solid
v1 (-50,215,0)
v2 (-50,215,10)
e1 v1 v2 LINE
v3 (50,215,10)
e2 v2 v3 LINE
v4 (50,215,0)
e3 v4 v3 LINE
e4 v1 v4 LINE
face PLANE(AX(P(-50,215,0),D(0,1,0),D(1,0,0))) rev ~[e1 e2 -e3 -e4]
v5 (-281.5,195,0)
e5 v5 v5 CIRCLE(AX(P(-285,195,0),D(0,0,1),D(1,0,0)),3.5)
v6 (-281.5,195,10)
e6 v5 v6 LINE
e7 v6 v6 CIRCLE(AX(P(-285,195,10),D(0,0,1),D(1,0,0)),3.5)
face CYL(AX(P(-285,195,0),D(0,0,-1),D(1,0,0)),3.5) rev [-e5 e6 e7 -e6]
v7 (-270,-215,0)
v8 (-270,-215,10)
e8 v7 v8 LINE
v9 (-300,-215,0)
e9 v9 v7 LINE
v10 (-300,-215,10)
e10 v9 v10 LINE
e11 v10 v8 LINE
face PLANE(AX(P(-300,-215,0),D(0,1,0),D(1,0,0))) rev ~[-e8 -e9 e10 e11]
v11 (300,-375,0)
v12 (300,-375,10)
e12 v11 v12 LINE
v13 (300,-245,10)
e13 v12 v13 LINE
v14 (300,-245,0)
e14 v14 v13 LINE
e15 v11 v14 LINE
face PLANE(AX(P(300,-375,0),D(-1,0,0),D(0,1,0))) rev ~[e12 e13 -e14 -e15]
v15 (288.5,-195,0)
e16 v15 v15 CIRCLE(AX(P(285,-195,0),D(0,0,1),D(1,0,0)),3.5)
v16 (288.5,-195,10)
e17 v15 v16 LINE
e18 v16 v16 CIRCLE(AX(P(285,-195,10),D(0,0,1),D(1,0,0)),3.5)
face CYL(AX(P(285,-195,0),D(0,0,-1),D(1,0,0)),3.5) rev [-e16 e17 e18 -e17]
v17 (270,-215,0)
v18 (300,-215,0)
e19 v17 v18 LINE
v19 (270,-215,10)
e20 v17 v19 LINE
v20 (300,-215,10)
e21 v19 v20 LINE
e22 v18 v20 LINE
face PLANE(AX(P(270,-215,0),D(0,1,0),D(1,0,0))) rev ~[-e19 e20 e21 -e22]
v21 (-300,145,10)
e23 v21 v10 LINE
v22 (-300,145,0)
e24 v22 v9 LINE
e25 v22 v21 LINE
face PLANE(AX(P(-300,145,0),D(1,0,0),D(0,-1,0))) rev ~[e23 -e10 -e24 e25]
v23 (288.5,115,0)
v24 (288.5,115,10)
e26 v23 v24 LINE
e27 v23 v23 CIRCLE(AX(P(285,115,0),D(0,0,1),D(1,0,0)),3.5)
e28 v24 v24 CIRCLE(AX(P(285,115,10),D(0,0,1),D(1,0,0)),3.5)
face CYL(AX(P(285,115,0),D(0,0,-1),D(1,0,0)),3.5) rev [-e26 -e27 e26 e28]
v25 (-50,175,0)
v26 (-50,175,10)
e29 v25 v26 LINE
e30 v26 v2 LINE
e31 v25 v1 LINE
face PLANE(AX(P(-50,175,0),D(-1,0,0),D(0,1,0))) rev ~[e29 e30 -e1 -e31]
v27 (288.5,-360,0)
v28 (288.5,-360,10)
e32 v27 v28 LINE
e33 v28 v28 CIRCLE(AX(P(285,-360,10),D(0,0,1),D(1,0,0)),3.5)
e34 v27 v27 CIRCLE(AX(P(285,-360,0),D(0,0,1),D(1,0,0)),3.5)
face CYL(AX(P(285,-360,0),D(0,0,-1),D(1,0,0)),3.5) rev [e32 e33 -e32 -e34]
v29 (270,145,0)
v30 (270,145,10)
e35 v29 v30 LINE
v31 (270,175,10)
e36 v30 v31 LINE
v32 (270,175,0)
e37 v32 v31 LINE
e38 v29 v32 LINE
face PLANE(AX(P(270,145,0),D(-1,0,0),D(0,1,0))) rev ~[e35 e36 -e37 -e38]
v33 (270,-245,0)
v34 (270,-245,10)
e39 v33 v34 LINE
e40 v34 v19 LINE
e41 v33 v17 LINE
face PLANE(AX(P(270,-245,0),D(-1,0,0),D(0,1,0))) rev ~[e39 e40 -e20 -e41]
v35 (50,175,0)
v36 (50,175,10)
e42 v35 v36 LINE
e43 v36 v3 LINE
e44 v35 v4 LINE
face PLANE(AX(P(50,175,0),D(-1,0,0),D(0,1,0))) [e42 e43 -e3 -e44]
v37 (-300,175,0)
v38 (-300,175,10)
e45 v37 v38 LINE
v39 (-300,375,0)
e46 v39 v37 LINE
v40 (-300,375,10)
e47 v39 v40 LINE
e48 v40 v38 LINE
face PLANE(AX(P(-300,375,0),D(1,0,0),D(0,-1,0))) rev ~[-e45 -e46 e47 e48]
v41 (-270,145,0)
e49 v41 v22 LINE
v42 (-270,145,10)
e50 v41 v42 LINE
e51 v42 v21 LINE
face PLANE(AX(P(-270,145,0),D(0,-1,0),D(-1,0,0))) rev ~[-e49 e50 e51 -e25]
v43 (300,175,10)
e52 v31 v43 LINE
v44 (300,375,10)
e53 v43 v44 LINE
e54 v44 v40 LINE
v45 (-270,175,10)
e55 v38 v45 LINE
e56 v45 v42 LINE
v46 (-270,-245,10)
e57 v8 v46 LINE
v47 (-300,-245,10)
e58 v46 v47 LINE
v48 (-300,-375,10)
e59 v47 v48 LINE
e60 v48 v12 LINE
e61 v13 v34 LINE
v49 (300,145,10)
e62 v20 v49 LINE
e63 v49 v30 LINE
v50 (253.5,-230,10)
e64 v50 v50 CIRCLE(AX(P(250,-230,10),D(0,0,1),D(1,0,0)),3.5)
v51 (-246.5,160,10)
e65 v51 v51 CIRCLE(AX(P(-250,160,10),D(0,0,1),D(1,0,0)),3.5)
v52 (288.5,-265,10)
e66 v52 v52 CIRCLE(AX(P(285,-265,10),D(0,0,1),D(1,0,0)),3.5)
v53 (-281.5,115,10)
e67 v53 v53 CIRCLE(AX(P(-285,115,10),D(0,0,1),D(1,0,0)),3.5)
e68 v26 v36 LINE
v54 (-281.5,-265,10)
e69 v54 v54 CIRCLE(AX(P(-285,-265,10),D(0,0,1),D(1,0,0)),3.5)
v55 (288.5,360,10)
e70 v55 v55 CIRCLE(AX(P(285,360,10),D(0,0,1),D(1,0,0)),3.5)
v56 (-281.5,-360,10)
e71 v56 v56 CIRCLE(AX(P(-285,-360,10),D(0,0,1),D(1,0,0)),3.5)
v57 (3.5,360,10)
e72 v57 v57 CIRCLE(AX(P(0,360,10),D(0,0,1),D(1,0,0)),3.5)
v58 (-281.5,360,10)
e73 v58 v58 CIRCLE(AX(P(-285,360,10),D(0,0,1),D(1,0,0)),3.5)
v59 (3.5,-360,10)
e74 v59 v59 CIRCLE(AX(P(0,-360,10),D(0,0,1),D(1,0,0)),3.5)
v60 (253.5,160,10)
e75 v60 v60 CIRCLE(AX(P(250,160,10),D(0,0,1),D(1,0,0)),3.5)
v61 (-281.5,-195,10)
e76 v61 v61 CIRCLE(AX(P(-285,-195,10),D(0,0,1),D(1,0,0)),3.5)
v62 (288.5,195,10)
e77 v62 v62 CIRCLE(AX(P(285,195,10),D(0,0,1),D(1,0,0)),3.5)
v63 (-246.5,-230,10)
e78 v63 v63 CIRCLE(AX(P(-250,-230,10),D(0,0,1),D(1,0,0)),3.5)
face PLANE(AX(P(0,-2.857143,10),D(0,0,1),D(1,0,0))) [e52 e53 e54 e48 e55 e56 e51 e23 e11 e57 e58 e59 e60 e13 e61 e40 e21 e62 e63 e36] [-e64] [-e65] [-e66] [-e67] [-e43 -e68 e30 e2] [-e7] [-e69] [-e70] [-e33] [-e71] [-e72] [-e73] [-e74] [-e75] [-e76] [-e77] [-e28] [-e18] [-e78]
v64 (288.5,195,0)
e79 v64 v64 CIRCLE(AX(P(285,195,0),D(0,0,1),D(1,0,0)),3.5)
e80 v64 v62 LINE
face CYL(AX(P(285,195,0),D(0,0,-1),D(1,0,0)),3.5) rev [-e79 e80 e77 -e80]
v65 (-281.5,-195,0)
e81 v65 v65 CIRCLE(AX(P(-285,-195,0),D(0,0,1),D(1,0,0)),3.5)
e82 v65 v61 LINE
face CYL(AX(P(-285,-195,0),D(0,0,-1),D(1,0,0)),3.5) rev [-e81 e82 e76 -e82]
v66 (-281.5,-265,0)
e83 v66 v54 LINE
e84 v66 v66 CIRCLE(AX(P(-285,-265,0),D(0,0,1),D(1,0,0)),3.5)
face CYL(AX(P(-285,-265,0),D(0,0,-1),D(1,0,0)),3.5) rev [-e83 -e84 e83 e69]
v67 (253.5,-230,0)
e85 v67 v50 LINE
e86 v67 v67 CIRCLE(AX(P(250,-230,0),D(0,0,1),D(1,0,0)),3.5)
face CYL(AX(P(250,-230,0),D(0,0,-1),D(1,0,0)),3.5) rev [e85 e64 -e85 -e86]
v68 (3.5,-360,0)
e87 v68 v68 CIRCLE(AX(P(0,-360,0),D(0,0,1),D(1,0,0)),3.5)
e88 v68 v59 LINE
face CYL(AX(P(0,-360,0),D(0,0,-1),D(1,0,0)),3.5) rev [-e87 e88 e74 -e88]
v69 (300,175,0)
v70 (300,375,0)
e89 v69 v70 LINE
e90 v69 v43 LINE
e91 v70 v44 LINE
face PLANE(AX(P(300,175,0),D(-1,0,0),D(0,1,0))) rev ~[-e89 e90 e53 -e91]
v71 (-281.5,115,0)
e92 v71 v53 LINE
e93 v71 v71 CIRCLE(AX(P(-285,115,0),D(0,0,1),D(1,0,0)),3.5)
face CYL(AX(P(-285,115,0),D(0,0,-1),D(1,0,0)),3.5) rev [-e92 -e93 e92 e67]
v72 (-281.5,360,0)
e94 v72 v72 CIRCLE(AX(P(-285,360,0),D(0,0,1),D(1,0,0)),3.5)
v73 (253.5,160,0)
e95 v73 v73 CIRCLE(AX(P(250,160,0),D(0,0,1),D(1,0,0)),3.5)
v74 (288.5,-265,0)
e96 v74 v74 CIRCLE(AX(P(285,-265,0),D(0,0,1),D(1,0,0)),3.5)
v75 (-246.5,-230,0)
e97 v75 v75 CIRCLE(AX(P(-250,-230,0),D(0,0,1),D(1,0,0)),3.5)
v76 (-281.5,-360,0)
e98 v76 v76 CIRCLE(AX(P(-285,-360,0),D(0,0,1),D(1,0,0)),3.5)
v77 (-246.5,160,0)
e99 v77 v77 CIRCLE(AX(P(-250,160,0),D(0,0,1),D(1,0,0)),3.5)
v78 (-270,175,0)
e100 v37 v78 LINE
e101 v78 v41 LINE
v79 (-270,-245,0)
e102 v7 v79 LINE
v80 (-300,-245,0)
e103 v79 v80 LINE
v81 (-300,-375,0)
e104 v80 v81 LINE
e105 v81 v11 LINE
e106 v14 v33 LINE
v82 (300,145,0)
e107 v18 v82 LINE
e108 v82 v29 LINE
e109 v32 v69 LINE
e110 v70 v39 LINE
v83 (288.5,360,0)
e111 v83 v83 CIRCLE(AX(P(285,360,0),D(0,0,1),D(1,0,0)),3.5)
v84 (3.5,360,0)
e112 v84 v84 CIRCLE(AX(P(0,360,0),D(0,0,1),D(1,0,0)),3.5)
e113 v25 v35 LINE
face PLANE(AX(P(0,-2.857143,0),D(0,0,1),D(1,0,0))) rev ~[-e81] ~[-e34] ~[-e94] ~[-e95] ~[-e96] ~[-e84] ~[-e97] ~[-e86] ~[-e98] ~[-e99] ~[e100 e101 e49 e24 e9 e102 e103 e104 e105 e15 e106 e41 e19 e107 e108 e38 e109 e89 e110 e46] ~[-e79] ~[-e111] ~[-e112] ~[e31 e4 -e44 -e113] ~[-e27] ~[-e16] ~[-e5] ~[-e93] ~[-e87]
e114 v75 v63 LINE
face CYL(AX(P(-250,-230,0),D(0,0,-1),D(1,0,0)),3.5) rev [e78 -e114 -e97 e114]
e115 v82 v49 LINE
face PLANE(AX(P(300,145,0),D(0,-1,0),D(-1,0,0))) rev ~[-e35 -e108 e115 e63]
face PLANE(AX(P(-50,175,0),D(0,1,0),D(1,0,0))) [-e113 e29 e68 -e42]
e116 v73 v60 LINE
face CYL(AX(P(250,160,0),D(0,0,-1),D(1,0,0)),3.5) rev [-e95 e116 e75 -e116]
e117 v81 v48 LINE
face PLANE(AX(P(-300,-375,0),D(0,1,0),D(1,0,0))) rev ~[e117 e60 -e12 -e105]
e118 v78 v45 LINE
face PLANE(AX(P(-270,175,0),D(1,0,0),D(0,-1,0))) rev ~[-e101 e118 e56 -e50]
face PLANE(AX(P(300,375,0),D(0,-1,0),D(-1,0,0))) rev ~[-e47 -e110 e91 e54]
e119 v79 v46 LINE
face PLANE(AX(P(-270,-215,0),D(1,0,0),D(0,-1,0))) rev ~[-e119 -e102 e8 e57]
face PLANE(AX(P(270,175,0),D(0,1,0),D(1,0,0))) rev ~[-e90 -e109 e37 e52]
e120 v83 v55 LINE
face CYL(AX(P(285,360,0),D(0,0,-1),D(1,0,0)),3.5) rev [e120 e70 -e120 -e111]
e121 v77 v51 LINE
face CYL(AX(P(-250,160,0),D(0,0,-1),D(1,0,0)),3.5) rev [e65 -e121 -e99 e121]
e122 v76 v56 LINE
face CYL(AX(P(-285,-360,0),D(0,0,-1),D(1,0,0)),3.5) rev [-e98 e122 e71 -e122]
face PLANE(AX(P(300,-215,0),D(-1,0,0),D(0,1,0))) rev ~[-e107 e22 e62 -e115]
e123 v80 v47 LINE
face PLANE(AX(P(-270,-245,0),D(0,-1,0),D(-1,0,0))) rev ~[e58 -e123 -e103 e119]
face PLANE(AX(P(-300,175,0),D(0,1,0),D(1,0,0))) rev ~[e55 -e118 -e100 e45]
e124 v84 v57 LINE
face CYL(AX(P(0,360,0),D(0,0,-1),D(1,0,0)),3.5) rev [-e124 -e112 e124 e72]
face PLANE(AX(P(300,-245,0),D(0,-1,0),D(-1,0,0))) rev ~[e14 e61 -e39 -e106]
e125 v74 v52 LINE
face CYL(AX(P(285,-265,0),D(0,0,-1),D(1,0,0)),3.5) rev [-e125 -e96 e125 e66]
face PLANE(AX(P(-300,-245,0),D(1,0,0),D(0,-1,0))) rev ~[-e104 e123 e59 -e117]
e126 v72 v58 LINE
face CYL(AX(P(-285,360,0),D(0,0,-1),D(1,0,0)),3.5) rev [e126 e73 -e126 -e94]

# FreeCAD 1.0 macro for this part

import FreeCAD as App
import Part
import Sketcher
from FreeCAD import Vector
Q = App.Units.Quantity

doc = App.newDocument("Part")
body = doc.addObject("PartDesign::Body", "Body")

# Sketch on XY plane
sketch1 = body.newObject("Sketcher::SketchObject", "Sketch")
sketch1.AttachmentSupport = (doc.getObject("XY_Plane"), [""])
sketch1.MapMode = "FlatFace"
sketch1.addGeometry(Part.LineSegment(Vector(300, 175, 0), Vector(300, 375, 0)), False)
sketch1.addGeometry(Part.LineSegment(Vector(300, 375, 0), Vector(-300, 375, 0)), False)
sketch1.addGeometry(Part.LineSegment(Vector(-300, 375, 0), Vector(-300, 175, 0)), False)
sketch1.addGeometry(Part.LineSegment(Vector(-300, 175, 0), Vector(-270, 175, 0)), False)
sketch1.addGeometry(Part.LineSegment(Vector(-270, 175, 0), Vector(-270, 145, 0)), False)
sketch1.addGeometry(Part.LineSegment(Vector(-270, 145, 0), Vector(-300, 145, 0)), False)
sketch1.addGeometry(Part.LineSegment(Vector(-300, 145, 0), Vector(-300, -215, 0)), False)
sketch1.addGeometry(Part.LineSegment(Vector(-300, -215, 0), Vector(-270, -215, 0)), False)
sketch1.addGeometry(Part.LineSegment(Vector(-270, -215, 0), Vector(-270, -245, 0)), False)
sketch1.addGeometry(Part.LineSegment(Vector(-270, -245, 0), Vector(-300, -245, 0)), False)
sketch1.addGeometry(Part.LineSegment(Vector(-300, -245, 0), Vector(-300, -375, 0)), False)
sketch1.addGeometry(Part.LineSegment(Vector(-300, -375, 0), Vector(300, -375, 0)), False)
sketch1.addGeometry(Part.LineSegment(Vector(300, -375, 0), Vector(300, -245, 0)), False)
sketch1.addGeometry(Part.LineSegment(Vector(300, -245, 0), Vector(270, -245, 0)), False)
sketch1.addGeometry(Part.LineSegment(Vector(270, -245, 0), Vector(270, -215, 0)), False)
sketch1.addGeometry(Part.LineSegment(Vector(270, -215, 0), Vector(300, -215, 0)), False)
sketch1.addGeometry(Part.LineSegment(Vector(300, -215, 0), Vector(300, 145, 0)), False)
sketch1.addGeometry(Part.LineSegment(Vector(300, 145, 0), Vector(270, 145, 0)), False)
sketch1.addGeometry(Part.LineSegment(Vector(270, 145, 0), Vector(270, 175, 0)), False)
sketch1.addGeometry(Part.LineSegment(Vector(270, 175, 0), Vector(300, 175, 0)), False)
sketch1.addGeometry(Part.Circle(Vector(-285, -360, 0), Vector(0, 0, 1), 3.5), False)
sketch1.addGeometry(Part.Circle(Vector(-285, -265, 0), Vector(0, 0, 1), 3.5), False)
sketch1.addGeometry(Part.Circle(Vector(-250, -230, 0), Vector(0, 0, 1), 3.5), False)
sketch1.addGeometry(Part.Circle(Vector(-285, -195, 0), Vector(0, 0, 1), 3.5), False)
sketch1.addGeometry(Part.Circle(Vector(0, -360, 0), Vector(0, 0, 1), 3.5), False)
sketch1.addGeometry(Part.Circle(Vector(285, -360, 0), Vector(0, 0, 1), 3.5), False)
sketch1.addGeometry(Part.Circle(Vector(250, -230, 0), Vector(0, 0, 1), 3.5), False)
sketch1.addGeometry(Part.Circle(Vector(285, -265, 0), Vector(0, 0, 1), 3.5), False)
sketch1.addGeometry(Part.Circle(Vector(285, -195, 0), Vector(0, 0, 1), 3.5), False)
sketch1.addGeometry(Part.Circle(Vector(-285, 115, 0), Vector(0, 0, 1), 3.5), False)
sketch1.addGeometry(Part.Circle(Vector(-250, 160, 0), Vector(0, 0, 1), 3.5), False)
sketch1.addGeometry(Part.Circle(Vector(-285, 195, 0), Vector(0, 0, 1), 3.5), False)
sketch1.addGeometry(Part.Circle(Vector(-285, 360, 0), Vector(0, 0, 1), 3.5), False)
sketch1.addGeometry(Part.Circle(Vector(285, 115, 0), Vector(0, 0, 1), 3.5), False)
sketch1.addGeometry(Part.Circle(Vector(250, 160, 0), Vector(0, 0, 1), 3.5), False)
sketch1.addGeometry(Part.LineSegment(Vector(50, 175, 0), Vector(-50, 175, 0)), False)
sketch1.addGeometry(Part.LineSegment(Vector(-50, 175, 0), Vector(-50, 215, 0)), False)
sketch1.addGeometry(Part.LineSegment(Vector(-50, 215, 0), Vector(50, 215, 0)), False)
sketch1.addGeometry(Part.LineSegment(Vector(50, 215, 0), Vector(50, 175, 0)), False)
sketch1.addGeometry(Part.Circle(Vector(0, 360, 0), Vector(0, 0, 1), 3.5), False)
sketch1.addGeometry(Part.Circle(Vector(285, 195, 0), Vector(0, 0, 1), 3.5), False)
sketch1.addGeometry(Part.Circle(Vector(285, 360, 0), Vector(0, 0, 1), 3.5), False)
sketch1.addConstraint(Sketcher.Constraint("Coincident", 0, 2, 1, 1))
sketch1.addConstraint(Sketcher.Constraint("Coincident", 1, 2, 2, 1))
sketch1.addConstraint(Sketcher.Constraint("Coincident", 2, 2, 3, 1))
sketch1.addConstraint(Sketcher.Constraint("Coincident", 3, 2, 4, 1))
sketch1.addConstraint(Sketcher.Constraint("Coincident", 4, 2, 5, 1))
sketch1.addConstraint(Sketcher.Constraint("Coincident", 5, 2, 6, 1))
sketch1.addConstraint(Sketcher.Constraint("Coincident", 6, 2, 7, 1))
sketch1.addConstraint(Sketcher.Constraint("Coincident", 7, 2, 8, 1))
sketch1.addConstraint(Sketcher.Constraint("Coincident", 8, 2, 9, 1))
sketch1.addConstraint(Sketcher.Constraint("Coincident", 9, 2, 10, 1))
sketch1.addConstraint(Sketcher.Constraint("Coincident", 10, 2, 11, 1))
sketch1.addConstraint(Sketcher.Constraint("Coincident", 11, 2, 12, 1))
sketch1.addConstraint(Sketcher.Constraint("Coincident", 12, 2, 13, 1))
sketch1.addConstraint(Sketcher.Constraint("Coincident", 13, 2, 14, 1))
sketch1.addConstraint(Sketcher.Constraint("Coincident", 14, 2, 15, 1))
sketch1.addConstraint(Sketcher.Constraint("Coincident", 15, 2, 16, 1))
sketch1.addConstraint(Sketcher.Constraint("Coincident", 16, 2, 17, 1))
sketch1.addConstraint(Sketcher.Constraint("Coincident", 17, 2, 18, 1))
sketch1.addConstraint(Sketcher.Constraint("Coincident", 18, 2, 19, 1))
sketch1.addConstraint(Sketcher.Constraint("Coincident", 19, 2, 0, 1))
sketch1.addConstraint(Sketcher.Constraint("Coincident", 35, 2, 36, 1))
sketch1.addConstraint(Sketcher.Constraint("Coincident", 36, 2, 37, 1))
sketch1.addConstraint(Sketcher.Constraint("Coincident", 37, 2, 38, 1))
sketch1.addConstraint(Sketcher.Constraint("Coincident", 38, 2, 35, 1))
sketch1.addConstraint(Sketcher.Constraint("Vertical", 0))
sketch1.addConstraint(Sketcher.Constraint("Horizontal", 1))
sketch1.addConstraint(Sketcher.Constraint("Vertical", 2))
sketch1.addConstraint(Sketcher.Constraint("Horizontal", 3))
sketch1.addConstraint(Sketcher.Constraint("Vertical", 4))
sketch1.addConstraint(Sketcher.Constraint("Horizontal", 5))
sketch1.addConstraint(Sketcher.Constraint("Vertical", 6))
sketch1.addConstraint(Sketcher.Constraint("Horizontal", 7))
sketch1.addConstraint(Sketcher.Constraint("Vertical", 8))
sketch1.addConstraint(Sketcher.Constraint("Horizontal", 9))
sketch1.addConstraint(Sketcher.Constraint("Vertical", 10))
sketch1.addConstraint(Sketcher.Constraint("Horizontal", 11))
sketch1.addConstraint(Sketcher.Constraint("Vertical", 12))
sketch1.addConstraint(Sketcher.Constraint("Horizontal", 13))
sketch1.addConstraint(Sketcher.Constraint("Vertical", 14))
sketch1.addConstraint(Sketcher.Constraint("Horizontal", 15))
sketch1.addConstraint(Sketcher.Constraint("Vertical", 16))
sketch1.addConstraint(Sketcher.Constraint("Horizontal", 17))
sketch1.addConstraint(Sketcher.Constraint("Vertical", 18))
sketch1.addConstraint(Sketcher.Constraint("Horizontal", 19))
sketch1.addConstraint(Sketcher.Constraint("Horizontal", 35))
sketch1.addConstraint(Sketcher.Constraint("Vertical", 36))
sketch1.addConstraint(Sketcher.Constraint("Horizontal", 37))
sketch1.addConstraint(Sketcher.Constraint("Vertical", 38))
sketch1.addConstraint(Sketcher.Constraint("Equal", 20, 21))
sketch1.addConstraint(Sketcher.Constraint("Equal", 21, 22))
sketch1.addConstraint(Sketcher.Constraint("Equal", 22, 23))
sketch1.addConstraint(Sketcher.Constraint("Equal", 23, 24))
sketch1.addConstraint(Sketcher.Constraint("Equal", 24, 25))
sketch1.addConstraint(Sketcher.Constraint("Equal", 25, 26))
sketch1.addConstraint(Sketcher.Constraint("Equal", 26, 27))
sketch1.addConstraint(Sketcher.Constraint("Equal", 27, 28))
sketch1.addConstraint(Sketcher.Constraint("Equal", 28, 29))
sketch1.addConstraint(Sketcher.Constraint("Equal", 29, 30))
sketch1.addConstraint(Sketcher.Constraint("Equal", 30, 31))
sketch1.addConstraint(Sketcher.Constraint("Equal", 31, 32))
sketch1.addConstraint(Sketcher.Constraint("Equal", 32, 33))
sketch1.addConstraint(Sketcher.Constraint("Equal", 33, 34))
sketch1.addConstraint(Sketcher.Constraint("Equal", 34, 39))
sketch1.addConstraint(Sketcher.Constraint("Equal", 39, 40))
sketch1.addConstraint(Sketcher.Constraint("Equal", 40, 41))
sketch1.addConstraint(Sketcher.Constraint("Symmetric", 28, 3, 31, 3, -1, 1))
sketch1.addConstraint(Sketcher.Constraint("Symmetric", 25, 3, 32, 3, -1, 1))
sketch1.addConstraint(Sketcher.Constraint("Symmetric", 24, 3, 39, 3, -1, 1))
sketch1.addConstraint(Sketcher.Constraint("Symmetric", 23, 3, 40, 3, -1, 1))
sketch1.addConstraint(Sketcher.Constraint("Symmetric", 20, 3, 41, 3, -1, 1))
sketch1.addConstraint(Sketcher.Constraint("Symmetric", 0, 2, 10, 2, -1, 1))
sketch1.addConstraint(Sketcher.Constraint("Symmetric", 20, 3, 25, 3, -2))
sketch1.addConstraint(Sketcher.Constraint("Symmetric", 22, 3, 26, 3, -2))
sketch1.addConstraint(Sketcher.Constraint("Symmetric", 21, 3, 27, 3, -2))
sketch1.addConstraint(Sketcher.Constraint("Symmetric", 23, 3, 28, 3, -2))
sketch1.addConstraint(Sketcher.Constraint("Symmetric", 29, 3, 33, 3, -2))
sketch1.addConstraint(Sketcher.Constraint("Symmetric", 30, 3, 34, 3, -2))
sketch1.addConstraint(Sketcher.Constraint("Symmetric", 9, 2, 12, 2, -2))
sketch1.addConstraint(Sketcher.Constraint("Symmetric", 7, 2, 14, 2, -2))
sketch1.addConstraint(Sketcher.Constraint("Symmetric", 5, 2, 16, 2, -2))
sketch1.addConstraint(Sketcher.Constraint("Symmetric", 3, 2, 18, 2, -2))
sketch1.addConstraint(Sketcher.Constraint("PointOnObject", 24, 3, -2))
sketch1.addConstraint(Sketcher.Constraint("Horizontal", 20, 3, 24, 3))
sketch1.addConstraint(Sketcher.Constraint("Horizontal", 19, 2, 35, 2))
sketch1.addConstraint(Sketcher.Constraint("Vertical", 20, 3, 21, 3))
sketch1.addConstraint(Sketcher.Constraint("Vertical", 21, 3, 23, 3))
sketch1.addConstraint(Sketcher.Constraint("Vertical", 23, 3, 29, 3))
sketch1.addConstraint(Sketcher.Constraint("Vertical", 22, 3, 30, 3))
sketch1.addConstraint(Sketcher.Constraint("Vertical", 2, 2, 5, 2))
sketch1.addConstraint(Sketcher.Constraint("Vertical", 4, 2, 7, 2))
sketch1.addConstraint(Sketcher.Constraint("Vertical", 6, 2, 9, 2))
sketch1.addConstraint(Sketcher.Constraint("Equal", 19, 4))
sketch1.addConstraint(Sketcher.Constraint("Equal", 4, 8))
sketch1.addConstraint(Sketcher.Constraint("Diameter", 20, Q("7 mm")))
sketch1.addConstraint(Sketcher.Constraint("DistanceX", 1, 2, 1, 1, Q("600 mm")))
sketch1.addConstraint(Sketcher.Constraint("DistanceX", 3, 1, 3, 2, Q("30 mm")))
sketch1.addConstraint(Sketcher.Constraint("DistanceX", 35, 2, 35, 1, Q("100 mm")))
sketch1.addConstraint(Sketcher.Constraint("DistanceY", 0, 1, 0, 2, Q("200 mm")))
sketch1.addConstraint(Sketcher.Constraint("DistanceY", 6, 2, 6, 1, Q("360 mm")))
sketch1.addConstraint(Sketcher.Constraint("DistanceY", 10, 2, 10, 1, Q("130 mm")))
sketch1.addConstraint(Sketcher.Constraint("DistanceY", 36, 1, 36, 2, Q("40 mm")))
sketch1.addConstraint(Sketcher.Constraint("DistanceX", 20, 3, -1, 1, Q("285 mm")))
sketch1.addConstraint(Sketcher.Constraint("DistanceY", 20, 3, -1, 1, Q("360 mm")))
sketch1.addConstraint(Sketcher.Constraint("DistanceY", 21, 3, -1, 1, Q("265 mm")))
sketch1.addConstraint(Sketcher.Constraint("DistanceX", 22, 3, -1, 1, Q("250 mm")))
sketch1.addConstraint(Sketcher.Constraint("DistanceY", 22, 3, -1, 1, Q("230 mm")))
sketch1.addConstraint(Sketcher.Constraint("DistanceY", 23, 3, -1, 1, Q("195 mm")))
sketch1.addConstraint(Sketcher.Constraint("DistanceY", -1, 1, 29, 3, Q("115 mm")))
sketch1.addConstraint(Sketcher.Constraint("DistanceY", -1, 1, 30, 3, Q("160 mm")))
sketch1.addConstraint(Sketcher.Constraint("DistanceX", 35, 2, -1, 1, Q("50 mm")))
pad1 = body.newObject("PartDesign::Pad", "Pad")
pad1.Profile = sketch1
pad1.Length = 10

doc.recompute()
